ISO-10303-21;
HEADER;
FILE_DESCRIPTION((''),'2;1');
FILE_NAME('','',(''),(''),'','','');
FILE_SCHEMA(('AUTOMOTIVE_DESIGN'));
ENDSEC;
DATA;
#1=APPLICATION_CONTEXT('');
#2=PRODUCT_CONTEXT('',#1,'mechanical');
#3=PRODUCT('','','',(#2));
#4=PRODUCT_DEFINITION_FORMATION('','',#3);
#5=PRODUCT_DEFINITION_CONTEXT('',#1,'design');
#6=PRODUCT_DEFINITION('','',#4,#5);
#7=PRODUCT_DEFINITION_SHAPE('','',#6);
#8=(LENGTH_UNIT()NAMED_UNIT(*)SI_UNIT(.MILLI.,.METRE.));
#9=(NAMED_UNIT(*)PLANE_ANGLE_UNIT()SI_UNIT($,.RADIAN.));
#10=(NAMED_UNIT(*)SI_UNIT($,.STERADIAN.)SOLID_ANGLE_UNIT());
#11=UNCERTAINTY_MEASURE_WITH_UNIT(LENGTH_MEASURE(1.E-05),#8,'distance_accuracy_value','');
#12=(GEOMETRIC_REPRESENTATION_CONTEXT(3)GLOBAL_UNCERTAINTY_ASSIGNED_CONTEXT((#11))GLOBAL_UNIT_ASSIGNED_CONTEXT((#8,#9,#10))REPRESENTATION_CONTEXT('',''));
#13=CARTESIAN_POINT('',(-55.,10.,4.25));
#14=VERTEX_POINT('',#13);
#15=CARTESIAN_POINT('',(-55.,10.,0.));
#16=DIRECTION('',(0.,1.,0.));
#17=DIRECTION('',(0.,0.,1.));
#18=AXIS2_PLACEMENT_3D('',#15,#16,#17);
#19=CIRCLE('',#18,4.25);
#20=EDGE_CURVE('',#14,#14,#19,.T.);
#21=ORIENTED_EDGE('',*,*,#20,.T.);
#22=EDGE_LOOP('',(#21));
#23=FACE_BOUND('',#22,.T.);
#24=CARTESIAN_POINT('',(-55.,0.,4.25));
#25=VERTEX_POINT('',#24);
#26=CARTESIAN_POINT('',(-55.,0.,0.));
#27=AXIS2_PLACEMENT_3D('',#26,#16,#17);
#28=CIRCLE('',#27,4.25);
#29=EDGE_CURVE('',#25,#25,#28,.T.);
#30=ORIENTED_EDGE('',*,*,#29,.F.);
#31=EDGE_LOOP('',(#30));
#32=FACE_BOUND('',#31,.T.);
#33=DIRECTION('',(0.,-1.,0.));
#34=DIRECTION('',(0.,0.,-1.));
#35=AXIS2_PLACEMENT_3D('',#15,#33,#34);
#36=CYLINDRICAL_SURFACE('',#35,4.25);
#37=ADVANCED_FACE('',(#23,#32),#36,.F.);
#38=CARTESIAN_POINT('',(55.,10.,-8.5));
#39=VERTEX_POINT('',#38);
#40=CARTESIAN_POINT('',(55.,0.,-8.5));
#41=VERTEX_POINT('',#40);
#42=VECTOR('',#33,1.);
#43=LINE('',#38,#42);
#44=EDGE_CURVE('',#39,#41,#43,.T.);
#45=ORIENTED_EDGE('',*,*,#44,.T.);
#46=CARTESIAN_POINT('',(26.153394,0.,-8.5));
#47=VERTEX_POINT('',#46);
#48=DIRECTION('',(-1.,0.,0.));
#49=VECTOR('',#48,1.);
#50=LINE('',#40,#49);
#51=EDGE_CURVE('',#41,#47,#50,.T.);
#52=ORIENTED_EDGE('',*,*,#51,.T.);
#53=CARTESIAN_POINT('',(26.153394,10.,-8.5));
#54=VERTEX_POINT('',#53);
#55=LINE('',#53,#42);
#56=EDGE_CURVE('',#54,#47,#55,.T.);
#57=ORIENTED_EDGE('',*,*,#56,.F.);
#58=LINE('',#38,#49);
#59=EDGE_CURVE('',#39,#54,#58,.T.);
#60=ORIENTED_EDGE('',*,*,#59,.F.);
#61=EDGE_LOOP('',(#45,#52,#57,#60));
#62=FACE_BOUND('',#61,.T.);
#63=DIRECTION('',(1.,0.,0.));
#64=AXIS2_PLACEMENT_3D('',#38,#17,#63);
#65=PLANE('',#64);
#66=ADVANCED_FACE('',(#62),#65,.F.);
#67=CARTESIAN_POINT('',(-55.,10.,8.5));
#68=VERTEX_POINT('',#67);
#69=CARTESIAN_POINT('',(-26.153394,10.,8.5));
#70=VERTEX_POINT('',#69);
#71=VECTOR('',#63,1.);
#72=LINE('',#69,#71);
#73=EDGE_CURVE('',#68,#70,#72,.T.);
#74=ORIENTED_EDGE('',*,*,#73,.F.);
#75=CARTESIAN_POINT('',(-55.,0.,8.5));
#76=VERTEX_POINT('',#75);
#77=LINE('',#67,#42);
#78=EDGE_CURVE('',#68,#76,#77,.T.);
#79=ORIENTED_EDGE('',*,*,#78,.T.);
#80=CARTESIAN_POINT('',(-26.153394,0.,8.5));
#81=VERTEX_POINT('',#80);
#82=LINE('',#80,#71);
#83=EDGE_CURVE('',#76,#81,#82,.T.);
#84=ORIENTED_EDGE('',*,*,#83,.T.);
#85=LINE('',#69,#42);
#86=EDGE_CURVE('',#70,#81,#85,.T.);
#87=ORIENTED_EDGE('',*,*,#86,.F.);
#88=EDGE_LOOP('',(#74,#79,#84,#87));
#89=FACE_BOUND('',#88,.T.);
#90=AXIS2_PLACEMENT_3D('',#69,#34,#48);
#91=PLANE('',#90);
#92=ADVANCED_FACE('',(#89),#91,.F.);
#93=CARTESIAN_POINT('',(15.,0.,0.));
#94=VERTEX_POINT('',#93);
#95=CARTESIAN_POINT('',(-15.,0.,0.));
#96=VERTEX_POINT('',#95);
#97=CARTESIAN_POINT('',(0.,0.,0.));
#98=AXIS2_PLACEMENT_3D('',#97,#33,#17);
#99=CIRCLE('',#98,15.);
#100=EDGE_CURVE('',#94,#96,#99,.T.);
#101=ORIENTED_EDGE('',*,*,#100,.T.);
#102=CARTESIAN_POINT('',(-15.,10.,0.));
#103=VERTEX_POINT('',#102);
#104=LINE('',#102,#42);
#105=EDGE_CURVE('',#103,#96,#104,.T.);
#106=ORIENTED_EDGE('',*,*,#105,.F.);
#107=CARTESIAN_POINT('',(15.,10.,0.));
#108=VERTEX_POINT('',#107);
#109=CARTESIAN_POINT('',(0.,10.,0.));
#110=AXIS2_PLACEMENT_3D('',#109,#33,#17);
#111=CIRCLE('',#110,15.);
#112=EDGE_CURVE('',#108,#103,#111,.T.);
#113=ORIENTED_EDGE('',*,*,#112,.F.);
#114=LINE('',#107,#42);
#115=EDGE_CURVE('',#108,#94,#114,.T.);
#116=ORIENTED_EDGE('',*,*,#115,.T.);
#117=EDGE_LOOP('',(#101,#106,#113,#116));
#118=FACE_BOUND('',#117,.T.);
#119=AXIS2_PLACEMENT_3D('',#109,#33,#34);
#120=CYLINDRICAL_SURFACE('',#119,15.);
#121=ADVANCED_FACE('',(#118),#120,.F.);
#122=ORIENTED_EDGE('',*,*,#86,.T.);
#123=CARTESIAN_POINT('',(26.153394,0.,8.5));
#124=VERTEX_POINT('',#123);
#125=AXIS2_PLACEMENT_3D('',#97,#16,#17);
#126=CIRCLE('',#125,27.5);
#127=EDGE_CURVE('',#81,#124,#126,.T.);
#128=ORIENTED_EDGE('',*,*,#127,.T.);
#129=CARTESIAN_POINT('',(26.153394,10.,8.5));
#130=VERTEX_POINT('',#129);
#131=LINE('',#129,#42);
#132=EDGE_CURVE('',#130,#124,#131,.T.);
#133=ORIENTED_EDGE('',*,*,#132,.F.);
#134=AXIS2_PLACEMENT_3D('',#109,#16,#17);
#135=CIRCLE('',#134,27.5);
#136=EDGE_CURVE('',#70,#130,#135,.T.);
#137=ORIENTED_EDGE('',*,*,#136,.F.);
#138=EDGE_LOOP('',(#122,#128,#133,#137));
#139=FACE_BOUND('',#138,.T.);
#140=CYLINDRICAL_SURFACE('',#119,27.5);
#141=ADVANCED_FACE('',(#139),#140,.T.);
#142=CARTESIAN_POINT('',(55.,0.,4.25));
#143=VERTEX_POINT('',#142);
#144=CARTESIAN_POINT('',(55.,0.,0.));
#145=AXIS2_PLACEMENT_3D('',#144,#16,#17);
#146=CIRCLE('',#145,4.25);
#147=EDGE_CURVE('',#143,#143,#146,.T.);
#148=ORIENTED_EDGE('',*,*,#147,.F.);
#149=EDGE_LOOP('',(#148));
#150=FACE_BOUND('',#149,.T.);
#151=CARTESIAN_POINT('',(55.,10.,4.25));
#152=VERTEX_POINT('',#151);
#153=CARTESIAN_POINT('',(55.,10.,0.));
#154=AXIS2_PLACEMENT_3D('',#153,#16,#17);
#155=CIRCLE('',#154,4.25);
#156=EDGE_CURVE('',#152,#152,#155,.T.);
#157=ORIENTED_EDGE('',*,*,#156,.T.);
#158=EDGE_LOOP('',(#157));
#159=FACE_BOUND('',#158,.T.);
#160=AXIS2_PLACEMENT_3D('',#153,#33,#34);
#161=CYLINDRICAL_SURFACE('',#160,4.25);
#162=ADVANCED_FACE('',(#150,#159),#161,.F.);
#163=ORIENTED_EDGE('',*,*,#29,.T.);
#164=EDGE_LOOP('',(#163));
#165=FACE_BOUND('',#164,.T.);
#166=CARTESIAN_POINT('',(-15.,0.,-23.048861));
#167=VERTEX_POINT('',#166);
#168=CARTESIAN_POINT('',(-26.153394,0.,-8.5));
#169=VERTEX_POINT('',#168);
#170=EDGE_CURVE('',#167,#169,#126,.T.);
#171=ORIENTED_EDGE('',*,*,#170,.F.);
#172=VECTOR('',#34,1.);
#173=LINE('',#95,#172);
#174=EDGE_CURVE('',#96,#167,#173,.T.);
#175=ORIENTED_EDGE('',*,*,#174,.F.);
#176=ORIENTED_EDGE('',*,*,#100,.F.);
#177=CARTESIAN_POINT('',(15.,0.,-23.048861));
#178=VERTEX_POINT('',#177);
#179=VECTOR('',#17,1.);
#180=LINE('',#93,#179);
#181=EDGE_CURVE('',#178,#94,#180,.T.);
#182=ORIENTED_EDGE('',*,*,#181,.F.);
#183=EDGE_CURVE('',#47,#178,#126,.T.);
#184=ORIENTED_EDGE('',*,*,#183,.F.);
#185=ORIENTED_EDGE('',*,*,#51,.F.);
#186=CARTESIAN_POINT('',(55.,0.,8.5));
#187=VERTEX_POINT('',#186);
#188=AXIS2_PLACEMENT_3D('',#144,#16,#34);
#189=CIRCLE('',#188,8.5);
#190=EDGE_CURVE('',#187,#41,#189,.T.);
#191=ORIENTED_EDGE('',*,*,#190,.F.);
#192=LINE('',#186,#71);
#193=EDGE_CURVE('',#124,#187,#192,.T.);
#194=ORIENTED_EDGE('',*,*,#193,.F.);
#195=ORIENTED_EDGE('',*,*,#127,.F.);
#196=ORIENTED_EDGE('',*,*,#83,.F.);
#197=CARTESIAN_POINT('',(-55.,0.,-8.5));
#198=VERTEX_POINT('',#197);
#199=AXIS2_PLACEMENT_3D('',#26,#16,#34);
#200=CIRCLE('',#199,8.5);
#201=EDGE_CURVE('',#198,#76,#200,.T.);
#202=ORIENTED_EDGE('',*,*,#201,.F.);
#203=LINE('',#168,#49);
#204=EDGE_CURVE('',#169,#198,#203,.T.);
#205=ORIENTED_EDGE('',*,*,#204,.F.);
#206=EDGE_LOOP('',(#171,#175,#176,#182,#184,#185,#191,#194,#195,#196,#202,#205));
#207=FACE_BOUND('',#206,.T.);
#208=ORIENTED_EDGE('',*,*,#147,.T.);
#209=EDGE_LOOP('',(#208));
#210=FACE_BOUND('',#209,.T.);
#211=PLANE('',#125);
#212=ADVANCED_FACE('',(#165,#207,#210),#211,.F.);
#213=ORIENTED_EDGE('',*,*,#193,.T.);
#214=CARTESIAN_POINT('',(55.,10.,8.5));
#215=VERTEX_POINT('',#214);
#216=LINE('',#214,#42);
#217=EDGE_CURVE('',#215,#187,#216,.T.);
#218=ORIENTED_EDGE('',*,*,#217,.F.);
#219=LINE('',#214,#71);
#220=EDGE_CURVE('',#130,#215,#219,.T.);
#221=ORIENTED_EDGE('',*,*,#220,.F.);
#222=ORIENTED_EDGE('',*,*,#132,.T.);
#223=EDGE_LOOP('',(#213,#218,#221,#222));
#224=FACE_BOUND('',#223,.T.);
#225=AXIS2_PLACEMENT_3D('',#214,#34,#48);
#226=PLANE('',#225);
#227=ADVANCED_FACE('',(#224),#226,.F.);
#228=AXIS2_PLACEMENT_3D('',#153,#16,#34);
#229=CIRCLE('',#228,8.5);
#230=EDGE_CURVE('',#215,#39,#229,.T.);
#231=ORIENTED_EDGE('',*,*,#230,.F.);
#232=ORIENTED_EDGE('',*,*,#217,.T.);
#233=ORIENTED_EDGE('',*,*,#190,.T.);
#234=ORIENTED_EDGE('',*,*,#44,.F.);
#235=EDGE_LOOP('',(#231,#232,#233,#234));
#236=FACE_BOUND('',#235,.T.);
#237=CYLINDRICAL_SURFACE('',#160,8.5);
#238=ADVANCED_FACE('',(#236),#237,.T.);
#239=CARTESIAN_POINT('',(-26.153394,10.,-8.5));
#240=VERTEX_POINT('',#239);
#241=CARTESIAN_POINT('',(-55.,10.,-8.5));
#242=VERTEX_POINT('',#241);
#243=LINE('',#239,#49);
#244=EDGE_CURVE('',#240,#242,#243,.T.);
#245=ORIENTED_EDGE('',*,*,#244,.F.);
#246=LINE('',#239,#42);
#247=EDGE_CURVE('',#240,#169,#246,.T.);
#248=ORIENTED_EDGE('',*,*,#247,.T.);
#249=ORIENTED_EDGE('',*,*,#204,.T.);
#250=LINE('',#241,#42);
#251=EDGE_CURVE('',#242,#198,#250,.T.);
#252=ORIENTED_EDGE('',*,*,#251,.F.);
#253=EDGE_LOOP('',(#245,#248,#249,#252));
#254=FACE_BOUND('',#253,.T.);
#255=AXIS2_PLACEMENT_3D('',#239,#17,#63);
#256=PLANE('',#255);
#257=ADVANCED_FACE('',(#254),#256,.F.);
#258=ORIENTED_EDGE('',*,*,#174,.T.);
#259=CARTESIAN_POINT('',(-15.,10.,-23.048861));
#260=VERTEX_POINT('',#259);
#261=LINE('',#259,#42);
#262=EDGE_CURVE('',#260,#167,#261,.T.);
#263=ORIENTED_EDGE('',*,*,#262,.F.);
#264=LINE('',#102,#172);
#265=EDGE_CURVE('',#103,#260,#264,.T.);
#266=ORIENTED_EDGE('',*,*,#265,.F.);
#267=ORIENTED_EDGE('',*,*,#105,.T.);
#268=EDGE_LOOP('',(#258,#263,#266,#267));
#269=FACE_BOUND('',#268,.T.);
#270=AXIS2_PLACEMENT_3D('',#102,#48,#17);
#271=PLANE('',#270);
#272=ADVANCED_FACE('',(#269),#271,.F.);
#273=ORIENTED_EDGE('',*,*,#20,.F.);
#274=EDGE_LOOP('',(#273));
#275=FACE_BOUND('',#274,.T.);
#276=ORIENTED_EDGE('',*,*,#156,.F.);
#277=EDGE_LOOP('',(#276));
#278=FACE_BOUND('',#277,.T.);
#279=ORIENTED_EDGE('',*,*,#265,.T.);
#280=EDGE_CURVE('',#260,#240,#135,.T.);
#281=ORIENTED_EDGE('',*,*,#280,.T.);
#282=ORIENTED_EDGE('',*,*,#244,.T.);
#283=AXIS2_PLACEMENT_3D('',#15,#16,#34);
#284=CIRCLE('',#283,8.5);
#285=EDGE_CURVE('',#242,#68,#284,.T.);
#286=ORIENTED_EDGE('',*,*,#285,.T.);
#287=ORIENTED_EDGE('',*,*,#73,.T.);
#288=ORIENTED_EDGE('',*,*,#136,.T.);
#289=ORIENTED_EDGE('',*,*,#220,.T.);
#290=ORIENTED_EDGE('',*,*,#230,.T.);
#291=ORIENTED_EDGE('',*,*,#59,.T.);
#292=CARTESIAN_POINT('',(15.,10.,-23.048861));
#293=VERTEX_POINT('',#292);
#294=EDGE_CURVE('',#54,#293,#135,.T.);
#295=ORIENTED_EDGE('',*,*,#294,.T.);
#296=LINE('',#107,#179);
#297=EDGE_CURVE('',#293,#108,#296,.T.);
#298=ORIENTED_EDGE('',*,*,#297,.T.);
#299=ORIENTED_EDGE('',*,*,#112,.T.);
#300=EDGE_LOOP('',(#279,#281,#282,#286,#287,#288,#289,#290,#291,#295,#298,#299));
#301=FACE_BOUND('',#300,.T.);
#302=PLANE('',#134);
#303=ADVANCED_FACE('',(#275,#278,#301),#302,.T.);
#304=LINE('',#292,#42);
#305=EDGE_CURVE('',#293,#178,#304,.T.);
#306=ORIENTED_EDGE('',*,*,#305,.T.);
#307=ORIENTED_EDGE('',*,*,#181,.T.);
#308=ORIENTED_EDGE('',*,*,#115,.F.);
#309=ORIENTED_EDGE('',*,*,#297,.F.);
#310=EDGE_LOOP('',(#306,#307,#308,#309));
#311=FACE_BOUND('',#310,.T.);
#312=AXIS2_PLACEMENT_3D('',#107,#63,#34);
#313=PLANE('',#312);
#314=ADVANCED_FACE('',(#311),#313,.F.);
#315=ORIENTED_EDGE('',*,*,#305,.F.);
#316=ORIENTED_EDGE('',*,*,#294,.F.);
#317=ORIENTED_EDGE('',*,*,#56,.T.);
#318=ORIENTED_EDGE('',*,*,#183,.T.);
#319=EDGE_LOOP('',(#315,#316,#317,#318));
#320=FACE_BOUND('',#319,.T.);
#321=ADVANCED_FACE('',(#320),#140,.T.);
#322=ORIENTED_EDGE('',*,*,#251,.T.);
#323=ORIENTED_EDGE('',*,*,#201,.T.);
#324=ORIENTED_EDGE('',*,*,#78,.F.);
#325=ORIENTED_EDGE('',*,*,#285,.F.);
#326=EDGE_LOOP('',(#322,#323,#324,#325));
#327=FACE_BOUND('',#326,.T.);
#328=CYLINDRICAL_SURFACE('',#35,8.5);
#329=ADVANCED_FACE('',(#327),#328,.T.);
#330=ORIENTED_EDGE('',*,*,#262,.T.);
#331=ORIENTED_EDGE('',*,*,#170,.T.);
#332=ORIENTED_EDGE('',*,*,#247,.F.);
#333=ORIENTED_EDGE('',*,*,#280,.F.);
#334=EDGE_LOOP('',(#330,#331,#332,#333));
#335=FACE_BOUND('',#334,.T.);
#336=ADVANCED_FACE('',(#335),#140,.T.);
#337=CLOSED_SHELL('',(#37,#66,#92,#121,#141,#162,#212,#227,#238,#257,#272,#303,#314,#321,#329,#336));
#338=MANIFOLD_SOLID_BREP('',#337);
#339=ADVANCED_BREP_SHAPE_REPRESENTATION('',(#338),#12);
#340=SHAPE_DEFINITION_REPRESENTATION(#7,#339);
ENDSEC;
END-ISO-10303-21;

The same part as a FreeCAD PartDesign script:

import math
import FreeCAD as App
import Part
import Sketcher
from FreeCAD import Vector

doc = App.newDocument("Part")
body = doc.addObject("PartDesign::Body", "Body")

# Sketch on XZ plane
sketch1 = body.newObject("Sketcher::SketchObject", "Sketch")
sketch1.AttachmentSupport = (doc.getObject("XZ_Plane"), [""])
sketch1.MapMode = "FlatFace"
sketch1.addGeometry([
    Part.LineSegment(Vector(55, -8.5, 0), Vector(26.2, -8.5, 0)),  # 0
    Part.ArcOfCircle(Part.Circle(Vector(0, 0, 0), Vector(0, 0, 1), 27.5), math.radians(-57), math.radians(-18)),  # 1
    Part.LineSegment(Vector(15, -23, 0), Vector(15, 0, 0)),  # 2
    Part.ArcOfCircle(Part.Circle(Vector(0, 0, 0), Vector(0, 0, 1), 15), math.radians(0), math.radians(180)),  # 3
    Part.LineSegment(Vector(-15, 0, 0), Vector(-15, -23, 0)),  # 4
    Part.ArcOfCircle(Part.Circle(Vector(0, 0, 0), Vector(0, 0, 1), 27.5), math.radians(-162), math.radians(-123)),  # 5
    Part.LineSegment(Vector(-26.2, -8.5, 0), Vector(-55, -8.5, 0)),  # 6
    Part.ArcOfCircle(Part.Circle(Vector(-55, 0, 0), Vector(0, 0, 1), 8.5), math.radians(90), math.radians(270)),  # 7
    Part.LineSegment(Vector(-55, 8.5, 0), Vector(-26.2, 8.5, 0)),  # 8
    Part.ArcOfCircle(Part.Circle(Vector(0, 0, 0), Vector(0, 0, 1), 27.5), math.radians(18), math.radians(162)),  # 9
    Part.LineSegment(Vector(26.2, 8.5, 0), Vector(55, 8.5, 0)),  # 10
    Part.ArcOfCircle(Part.Circle(Vector(55, 0, 0), Vector(0, 0, 1), 8.5), math.radians(-90), math.radians(90)),  # 11
    Part.Circle(Vector(-55, 0, 0), Vector(0, 0, 1), 4.2),  # 12
    Part.Circle(Vector(55, 0, 0), Vector(0, 0, 1), 4.2),  # 13
], False)
sketch1.addConstraint([
    Sketcher.Constraint("Coincident", 0, 2, 1, 2),
    Sketcher.Constraint("Coincident", 1, 1, 2, 1),
    Sketcher.Constraint("Tangent", 2, 2, 3, 1),
    Sketcher.Constraint("Tangent", 3, 2, 4, 1),
    Sketcher.Constraint("Coincident", 4, 2, 5, 2),
    Sketcher.Constraint("Coincident", 5, 1, 6, 1),
    Sketcher.Constraint("Tangent", 6, 2, 7, 2),
    Sketcher.Constraint("Tangent", 7, 1, 8, 1),
    Sketcher.Constraint("Coincident", 8, 2, 9, 2),
    Sketcher.Constraint("Coincident", 9, 1, 10, 1),
    Sketcher.Constraint("Tangent", 10, 2, 11, 2),
    Sketcher.Constraint("Tangent", 11, 1, 0, 1),
    Sketcher.Constraint("Horizontal", 0),
    Sketcher.Constraint("Vertical", 2),
    Sketcher.Constraint("Vertical", 4),
    Sketcher.Constraint("Horizontal", 6),
    Sketcher.Constraint("Horizontal", 8),
    Sketcher.Constraint("Horizontal", 10),
    Sketcher.Constraint("Coincident", 1, 3, -1, 1),
    Sketcher.Constraint("Coincident", 3, 3, -1, 1),
    Sketcher.Constraint("Coincident", 5, 3, -1, 1),
    Sketcher.Constraint("Coincident", 9, 3, -1, 1),
    Sketcher.Constraint("Coincident", 12, 3, 7, 3),
    Sketcher.Constraint("Coincident", 13, 3, 11, 3),
    Sketcher.Constraint("Equal", 1, 5),
    Sketcher.Constraint("Equal", 5, 9),
    Sketcher.Constraint("Equal", 7, 11),
    Sketcher.Constraint("Equal", 12, 13),
    Sketcher.Constraint("Symmetric", 7, 3, 11, 3, -1, 1),
    Sketcher.Constraint("PointOnObject", 7, 3, -1),
    Sketcher.Constraint("Radius", 3, 15.0),
    Sketcher.Constraint("Diameter", 12, 8.5),
    Sketcher.Constraint("Radius", 1, 27.5),
    Sketcher.Constraint("Radius", 7, 8.5),
    Sketcher.Constraint("DistanceX", 7, 3, -1, 1, 55.0),
])
pad1 = body.newObject("PartDesign::Pad", "Pad")
pad1.Profile = sketch1
pad1.Length = 10
pad1.Reversed = True

doc.recompute()
